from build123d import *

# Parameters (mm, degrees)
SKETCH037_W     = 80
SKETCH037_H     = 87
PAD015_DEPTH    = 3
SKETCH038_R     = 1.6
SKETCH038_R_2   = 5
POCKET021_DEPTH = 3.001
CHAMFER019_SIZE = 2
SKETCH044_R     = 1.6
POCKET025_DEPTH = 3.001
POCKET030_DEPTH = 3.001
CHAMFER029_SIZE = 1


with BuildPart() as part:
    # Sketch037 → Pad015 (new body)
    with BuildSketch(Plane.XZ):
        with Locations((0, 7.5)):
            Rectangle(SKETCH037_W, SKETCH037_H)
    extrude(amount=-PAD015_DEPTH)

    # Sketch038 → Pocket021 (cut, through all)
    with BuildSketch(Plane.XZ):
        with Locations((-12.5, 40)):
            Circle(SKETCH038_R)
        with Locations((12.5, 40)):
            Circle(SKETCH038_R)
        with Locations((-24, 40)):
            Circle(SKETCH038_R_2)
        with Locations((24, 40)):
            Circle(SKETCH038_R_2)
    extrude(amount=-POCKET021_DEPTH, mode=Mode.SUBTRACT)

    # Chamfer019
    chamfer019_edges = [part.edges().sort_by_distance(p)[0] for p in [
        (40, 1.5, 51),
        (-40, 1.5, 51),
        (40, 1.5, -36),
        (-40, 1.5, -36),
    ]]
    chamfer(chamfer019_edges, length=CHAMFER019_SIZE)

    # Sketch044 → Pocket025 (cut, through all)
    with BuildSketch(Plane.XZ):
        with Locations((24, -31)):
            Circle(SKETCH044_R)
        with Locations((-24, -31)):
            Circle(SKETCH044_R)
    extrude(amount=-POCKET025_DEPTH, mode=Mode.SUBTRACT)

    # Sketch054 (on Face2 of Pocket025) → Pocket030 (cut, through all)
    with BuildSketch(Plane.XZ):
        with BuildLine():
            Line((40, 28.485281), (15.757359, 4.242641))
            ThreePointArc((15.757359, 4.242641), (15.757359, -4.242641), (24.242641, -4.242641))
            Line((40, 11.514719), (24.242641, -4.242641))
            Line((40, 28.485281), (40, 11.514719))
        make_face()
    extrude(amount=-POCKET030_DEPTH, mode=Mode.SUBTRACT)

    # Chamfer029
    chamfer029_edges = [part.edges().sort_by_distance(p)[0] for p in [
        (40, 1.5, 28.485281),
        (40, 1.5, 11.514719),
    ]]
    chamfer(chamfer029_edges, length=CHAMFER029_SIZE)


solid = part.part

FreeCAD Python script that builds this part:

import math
import FreeCAD as App
import Part
import Sketcher

V = App.Vector
Q = App.Units.Quantity


def edges_at(feature, points):
    """Names of the edges that pass closest to the given points."""
    edges = feature.Shape.Edges
    near = lambda p: min(range(len(edges)), key=lambda i: edges[i].distToShape(Part.Vertex(*p))[0])
    return sorted({f"Edge{near(p) + 1}" for p in points})


def add_polygon(sketch, points):
    """Adds a closed chain of lines whose ends are joined by coincident constraints."""
    first, n = sketch.GeometryCount, len(points)
    for a, b in zip(points, points[1:] + points[:1]):
        sketch.addGeometry(Part.LineSegment(App.Vector(*a, 0), App.Vector(*b, 0)), False)
    for i in range(n):
        sketch.addConstraint(Sketcher.Constraint("Coincident", first + i, 2, first + (i + 1) % n, 1))

doc = App.newDocument("Part")
body = doc.addObject("PartDesign::Body", "Body")

# Sketch on XZ plane
sketch1 = doc.addObject("Sketcher::SketchObject", "Sketch")
body.addObject(sketch1)
sketch1.AttachmentSupport = (doc.XZ_Plane, [""])
sketch1.MapMode = "FlatFace"
add_polygon(sketch1, [(-40, 51), (-40, -36), (40, -36), (40, 51)])  # lines 0-3
sketch1.addConstraint([
    Sketcher.Constraint("Vertical", 0),
    Sketcher.Constraint("Horizontal", 1),
    Sketcher.Constraint("Vertical", 2),
    Sketcher.Constraint("Horizontal", 3),
    Sketcher.Constraint("DistanceX", 1, 1, 1, 2, 80.0),
    Sketcher.Constraint("DistanceY", 0, 2, 0, 1, 87.0),
    Sketcher.Constraint("DistanceX", 0, 2, -1, 1, 40.0),
    Sketcher.Constraint("DistanceY", 0, 2, -1, 1, 36.0),
])
pad1 = doc.addObject("PartDesign::Pad", "Pad")
body.addObject(pad1)
pad1.Profile = sketch1
pad1.Length = 3
pad1.Reversed = True

# Sketch on XZ plane
sketch2 = doc.addObject("Sketcher::SketchObject", "Sketch001")
body.addObject(sketch2)
sketch2.AttachmentSupport = (doc.XZ_Plane, [""])
sketch2.MapMode = "FlatFace"
sketch2.addGeometry([
    Part.Circle(V(-12.5, 40, 0), V(0, 0, 1), 1.6),
    Part.Circle(V(12.5, 40, 0), V(0, 0, 1), 1.6),
    Part.Circle(V(-24, 40, 0), V(0, 0, 1), 5),
    Part.Circle(V(24, 40, 0), V(0, 0, 1), 5),
], False)
sketch2.addConstraint([
    Sketcher.Constraint("Equal", 0, 1),
    Sketcher.Constraint("Equal", 2, 3),
    Sketcher.Constraint("Symmetric", 0, 3, 1, 3, -2),
    Sketcher.Constraint("Symmetric", 2, 3, 3, 3, -2),
    Sketcher.Constraint("Horizontal", 1, 3, 2, 3),
    Sketcher.Constraint("Diameter", 2, 10.0),
    Sketcher.Constraint("Diameter", 0, 3.2),
    Sketcher.Constraint("DistanceY", -1, 1, 0, 3, 40.0),
    Sketcher.Constraint("DistanceX", 2, 3, -1, 1, 24.0),
    Sketcher.Constraint("DistanceX", 0, 3, 1, 3, 25.0),
])
pocket1 = doc.addObject("PartDesign::Pocket", "Pocket")
body.addObject(pocket1)
pocket1.Profile = sketch2
pocket1.Type = "ThroughAll"
doc.recompute()

chamfer = doc.addObject("PartDesign::Chamfer", "Chamfer")
body.addObject(chamfer)
chamfer.Base = (pocket1, edges_at(pocket1, [
    (40, 1.5, 51),
    (-40, 1.5, 51),
    (40, 1.5, -36),
    (-40, 1.5, -36),
]))
chamfer.Size = 2

# Sketch on XZ plane
sketch3 = doc.addObject("Sketcher::SketchObject", "Sketch002")
body.addObject(sketch3)
sketch3.AttachmentSupport = (doc.XZ_Plane, [""])
sketch3.MapMode = "FlatFace"
sketch3.addGeometry([
    Part.Circle(V(24, -31, 0), V(0, 0, 1), 1.6),
    Part.Circle(V(-24, -31, 0), V(0, 0, 1), 1.6),
], False)
sketch3.addConstraint([
    Sketcher.Constraint("Equal", 0, 1),
    Sketcher.Constraint("Symmetric", 0, 3, 1, 3, -2),
    Sketcher.Constraint("Diameter", 0, 3.2),
    Sketcher.Constraint("DistanceX", -1, 1, 0, 3, 24.0),
    Sketcher.Constraint("DistanceY", 0, 3, -1, 1, 31.0),
])
pocket2 = doc.addObject("PartDesign::Pocket", "Pocket001")
body.addObject(pocket2)
pocket2.Profile = sketch3
pocket2.Type = "ThroughAll"

# Sketch on XZ plane
sketch4 = doc.addObject("Sketcher::SketchObject", "Sketch003")
body.addObject(sketch4)
sketch4.AttachmentSupport = (doc.XZ_Plane, [""])
sketch4.MapMode = "FlatFace"
sketch4.addGeometry([
    Part.LineSegment(V(40, 28, 0), V(16, 4, 0)),
    Part.ArcOfCircle(Part.Circle(V(20, 0, 0), V(0, 0, 1), 6), math.radians(135), math.radians(315)),
    Part.LineSegment(V(24, -4, 0), V(40, 12, 0)),
    Part.LineSegment(V(40, 12, 0), V(40, 28, 0)),
], False)
sketch4.addConstraint([
    Sketcher.Constraint("Tangent", 0, 2, 1, 1),
    Sketcher.Constraint("Tangent", 1, 2, 2, 1),
    Sketcher.Constraint("Coincident", 2, 2, 3, 1),
    Sketcher.Constraint("Coincident", 3, 2, 0, 1),
    Sketcher.Constraint("Vertical", 3),
    Sketcher.Constraint("PointOnObject", 1, 3, -1),
    Sketcher.Constraint("Parallel", 0, 2),
    Sketcher.Constraint("Radius", 1, 6.0),
    Sketcher.Constraint("Angle", 0, Q("-135.000001 deg")),
    Sketcher.Constraint("DistanceX", -1, 1, 1, 3, 20.0),
    Sketcher.Constraint("DistanceX", -1, 1, 2, 2, 40.0),
])
pocket3 = doc.addObject("PartDesign::Pocket", "Pocket002")
body.addObject(pocket3)
pocket3.Profile = sketch4
pocket3.Type = "ThroughAll"
doc.recompute()

chamfer2 = doc.addObject("PartDesign::Chamfer", "Chamfer001")
body.addObject(chamfer2)
chamfer2.Base = (pocket3, edges_at(pocket3, [(40, 1.5, 28.485), (40, 1.5, 11.515)]))
chamfer2.Size = 1

doc.recompute()
